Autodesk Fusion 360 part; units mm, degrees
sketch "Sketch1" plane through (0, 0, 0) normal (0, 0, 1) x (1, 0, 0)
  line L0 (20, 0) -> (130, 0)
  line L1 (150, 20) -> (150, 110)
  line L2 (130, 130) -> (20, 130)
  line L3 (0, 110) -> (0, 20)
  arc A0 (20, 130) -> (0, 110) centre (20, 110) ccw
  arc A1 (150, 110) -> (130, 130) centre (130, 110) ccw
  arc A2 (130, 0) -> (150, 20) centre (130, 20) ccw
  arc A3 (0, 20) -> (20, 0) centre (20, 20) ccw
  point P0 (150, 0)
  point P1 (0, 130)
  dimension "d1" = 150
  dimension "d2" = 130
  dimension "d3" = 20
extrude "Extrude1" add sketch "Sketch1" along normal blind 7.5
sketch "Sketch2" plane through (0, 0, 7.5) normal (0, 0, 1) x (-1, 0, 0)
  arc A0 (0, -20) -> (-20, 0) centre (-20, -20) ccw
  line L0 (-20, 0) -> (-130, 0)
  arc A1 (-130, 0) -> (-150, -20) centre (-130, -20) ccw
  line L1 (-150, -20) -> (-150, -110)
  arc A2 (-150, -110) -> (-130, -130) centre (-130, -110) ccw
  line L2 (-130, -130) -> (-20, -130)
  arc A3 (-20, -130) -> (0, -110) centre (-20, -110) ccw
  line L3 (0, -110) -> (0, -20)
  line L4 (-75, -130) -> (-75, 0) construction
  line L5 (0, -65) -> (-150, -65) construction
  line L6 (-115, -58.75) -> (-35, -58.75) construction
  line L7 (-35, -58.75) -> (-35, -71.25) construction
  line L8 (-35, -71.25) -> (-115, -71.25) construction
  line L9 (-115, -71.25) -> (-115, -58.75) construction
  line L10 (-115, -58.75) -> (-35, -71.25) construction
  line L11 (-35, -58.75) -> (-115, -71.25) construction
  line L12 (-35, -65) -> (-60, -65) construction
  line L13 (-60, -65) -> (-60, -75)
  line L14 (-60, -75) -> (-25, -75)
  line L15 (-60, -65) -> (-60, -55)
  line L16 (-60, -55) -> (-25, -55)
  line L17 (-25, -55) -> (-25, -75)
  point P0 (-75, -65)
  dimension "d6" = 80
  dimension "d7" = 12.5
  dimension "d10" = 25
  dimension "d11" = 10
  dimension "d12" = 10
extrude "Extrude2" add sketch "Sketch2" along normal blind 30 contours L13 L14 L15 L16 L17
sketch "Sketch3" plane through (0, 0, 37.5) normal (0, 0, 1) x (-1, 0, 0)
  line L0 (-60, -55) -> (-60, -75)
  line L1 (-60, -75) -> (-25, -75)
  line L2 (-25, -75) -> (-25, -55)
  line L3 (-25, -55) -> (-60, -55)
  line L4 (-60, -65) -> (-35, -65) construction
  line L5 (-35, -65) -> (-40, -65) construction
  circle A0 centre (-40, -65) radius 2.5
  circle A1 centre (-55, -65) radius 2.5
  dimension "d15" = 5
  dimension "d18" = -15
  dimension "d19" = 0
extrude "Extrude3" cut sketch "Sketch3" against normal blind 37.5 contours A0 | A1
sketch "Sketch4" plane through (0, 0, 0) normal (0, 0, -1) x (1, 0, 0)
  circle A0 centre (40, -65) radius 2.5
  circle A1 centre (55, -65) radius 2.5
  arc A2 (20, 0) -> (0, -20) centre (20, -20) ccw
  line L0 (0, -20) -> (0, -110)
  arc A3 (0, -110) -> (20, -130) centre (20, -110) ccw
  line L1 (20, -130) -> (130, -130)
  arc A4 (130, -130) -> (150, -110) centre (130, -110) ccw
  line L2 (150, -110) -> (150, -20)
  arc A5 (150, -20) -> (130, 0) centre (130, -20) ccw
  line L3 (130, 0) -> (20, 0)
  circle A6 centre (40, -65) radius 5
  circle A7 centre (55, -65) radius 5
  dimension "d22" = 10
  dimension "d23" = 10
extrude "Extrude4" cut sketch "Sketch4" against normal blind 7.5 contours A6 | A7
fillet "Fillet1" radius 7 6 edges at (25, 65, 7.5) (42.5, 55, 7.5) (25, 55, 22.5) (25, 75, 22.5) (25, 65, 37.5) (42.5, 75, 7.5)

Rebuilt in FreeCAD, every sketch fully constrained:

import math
import FreeCAD as App
import Part
import Sketcher
from FreeCAD import Vector
Q = App.Units.Quantity


def edges_at(feature, points):
    """Names of the edges that pass closest to the given points."""
    edges = feature.Shape.Edges
    near = lambda p: min(range(len(edges)), key=lambda i: edges[i].distToShape(Part.Vertex(*p))[0])
    return sorted({f"Edge{near(p) + 1}" for p in points})


def add_polygon(sketch, points):
    """Adds a closed chain of lines whose ends are joined by coincident constraints."""
    first, n = sketch.GeometryCount, len(points)
    for a, b in zip(points, points[1:] + points[:1]):
        sketch.addGeometry(Part.LineSegment(App.Vector(*a, 0), App.Vector(*b, 0)), False)
    for i in range(n):
        sketch.addConstraint(Sketcher.Constraint("Coincident", first + i, 2, first + (i + 1) % n, 1))

doc = App.newDocument("Part")
body = doc.addObject("PartDesign::Body", "Body")

sketch1 = body.newObject("Sketcher::SketchObject", "Sketch")
sketch1.AttachmentSupport = (doc.getObject("XY_Plane"), [""])
sketch1.MapMode = "FlatFace"
sketch1.addGeometry([
    Part.ArcOfCircle(Part.Circle(Vector(20, 20, 0), Vector(0, 0, 1), 20), math.radians(180), math.radians(270)),
    Part.LineSegment(Vector(20, 0, 0), Vector(130, 0, 0)),
    Part.ArcOfCircle(Part.Circle(Vector(130, 20, 0), Vector(0, 0, 1), 20), math.radians(-90), math.radians(0)),
    Part.LineSegment(Vector(150, 20, 0), Vector(150, 110, 0)),
    Part.ArcOfCircle(Part.Circle(Vector(130, 110, 0), Vector(0, 0, 1), 20), math.radians(0), math.radians(90)),
    Part.LineSegment(Vector(130, 130, 0), Vector(20, 130, 0)),
    Part.ArcOfCircle(Part.Circle(Vector(20, 110, 0), Vector(0, 0, 1), 20), math.radians(90), math.radians(180)),
    Part.LineSegment(Vector(0, 110, 0), Vector(0, 20, 0)),
], False)
sketch1.addConstraint([
    Sketcher.Constraint("Tangent", 0, 2, 1, 1),
    Sketcher.Constraint("Tangent", 1, 2, 2, 1),
    Sketcher.Constraint("Tangent", 2, 2, 3, 1),
    Sketcher.Constraint("Tangent", 3, 2, 4, 1),
    Sketcher.Constraint("Tangent", 4, 2, 5, 1),
    Sketcher.Constraint("Tangent", 5, 2, 6, 1),
    Sketcher.Constraint("Tangent", 6, 2, 7, 1),
    Sketcher.Constraint("Tangent", 7, 2, 0, 1),
    Sketcher.Constraint("Horizontal", 1),
    Sketcher.Constraint("Vertical", 3),
    Sketcher.Constraint("Horizontal", 5),
    Sketcher.Constraint("Vertical", 7),
    Sketcher.Constraint("Equal", 0, 2),
    Sketcher.Constraint("Equal", 2, 4),
    Sketcher.Constraint("Equal", 4, 6),
    Sketcher.Constraint("PointOnObject", 0, 2, -1),
    Sketcher.Constraint("PointOnObject", 6, 2, -2),
    Sketcher.Constraint("Radius", 0, Q("20 mm")),
    Sketcher.Constraint("DistanceX", -1, 1, 2, 3, Q("130 mm")),
    Sketcher.Constraint("DistanceY", -1, 1, 4, 2, Q("130 mm")),
])
pad1 = body.newObject("PartDesign::Pad", "Pad")
pad1.Profile = sketch1
pad1.Length = 7.5

sketch2 = body.newObject("Sketcher::SketchObject", "Sketch001")
sketch2.AttachmentSupport = (doc.getObject("XY_Plane"), [""])
sketch2.MapMode = "FlatFace"
sketch2.AttachmentOffset = App.Placement(Vector(0, 0, 7.5), App.Rotation())
add_polygon(sketch2, [(60, 55), (60, 75), (25, 75), (25, 55)])
sketch2.addConstraint([
    Sketcher.Constraint("Vertical", 0),
    Sketcher.Constraint("Horizontal", 1),
    Sketcher.Constraint("Vertical", 2),
    Sketcher.Constraint("Horizontal", 3),
    Sketcher.Constraint("DistanceX", -1, 1, 1, 2, Q("25 mm")),
    Sketcher.Constraint("DistanceX", 1, 2, 1, 1, Q("35 mm")),
    Sketcher.Constraint("DistanceY", 0, 1, 0, 2, Q("20 mm")),
    Sketcher.Constraint("DistanceY", -1, 1, 0, 2, Q("75 mm")),
])
pad2 = body.newObject("PartDesign::Pad", "Pad001")
pad2.Profile = sketch2
pad2.Length = 30

sketch3 = body.newObject("Sketcher::SketchObject", "Sketch002")
sketch3.AttachmentSupport = (doc.getObject("XY_Plane"), [""])
sketch3.MapMode = "FlatFace"
sketch3.AttachmentOffset = App.Placement(Vector(0, 0, 37.5), App.Rotation())
sketch3.addGeometry([
    Part.Circle(Vector(40, 65, 0), Vector(0, 0, 1), 2.5),
    Part.Circle(Vector(55, 65, 0), Vector(0, 0, 1), 2.5),
], False)
sketch3.addConstraint([
    Sketcher.Constraint("Equal", 0, 1),
    Sketcher.Constraint("Horizontal", 0, 3, 1, 3),
    Sketcher.Constraint("Diameter", 0, Q("5 mm")),
    Sketcher.Constraint("DistanceX", 0, 3, 1, 3, Q("15 mm")),
    Sketcher.Constraint("DistanceX", -1, 1, 0, 3, Q("40 mm")),
    Sketcher.Constraint("DistanceY", -1, 1, 0, 3, Q("65 mm")),
])
pocket1 = body.newObject("PartDesign::Pocket", "Pocket")
pocket1.Profile = sketch3
pocket1.Length = 37.5

sketch4 = body.newObject("Sketcher::SketchObject", "Sketch003")
sketch4.AttachmentSupport = (doc.getObject("XY_Plane"), [""])
sketch4.MapMode = "FlatFace"
sketch4.addGeometry([
    Part.Circle(Vector(40, 65, 0), Vector(0, 0, 1), 5),
    Part.Circle(Vector(40, 65, 0), Vector(0, 0, 1), 2.5),
    Part.Circle(Vector(55, 65, 0), Vector(0, 0, 1), 5),
    Part.Circle(Vector(55, 65, 0), Vector(0, 0, 1), 2.5),
], False)
sketch4.addConstraint([
    Sketcher.Constraint("Coincident", 1, 3, 0, 3),
    Sketcher.Constraint("Coincident", 3, 3, 2, 3),
    Sketcher.Constraint("Equal", 0, 2),
    Sketcher.Constraint("Equal", 1, 3),
    Sketcher.Constraint("Horizontal", 1, 3, 2, 3),
    Sketcher.Constraint("Diameter", 0, Q("10 mm")),
    Sketcher.Constraint("Diameter", 1, Q("5 mm")),
    Sketcher.Constraint("DistanceX", -1, 1, 0, 3, Q("40 mm")),
    Sketcher.Constraint("DistanceY", -1, 1, 0, 3, Q("65 mm")),
    Sketcher.Constraint("DistanceX", -1, 1, 2, 3, Q("55 mm")),
])
pocket2 = body.newObject("PartDesign::Pocket", "Pocket001")
pocket2.Profile = sketch4
pocket2.Length = 7.5
pocket2.Reversed = True
doc.recompute()

fillet = body.newObject("PartDesign::Fillet", "Fillet")
fillet.Base = (pocket2, edges_at(pocket2, [
    (25, 65, 7.5),
    (42.5, 55, 7.5),
    (25, 55, 22.5),
    (25, 75, 22.5),
    (25, 65, 37.5),
    (42.5, 75, 7.5),
]))
fillet.Radius = 7

doc.recompute()
